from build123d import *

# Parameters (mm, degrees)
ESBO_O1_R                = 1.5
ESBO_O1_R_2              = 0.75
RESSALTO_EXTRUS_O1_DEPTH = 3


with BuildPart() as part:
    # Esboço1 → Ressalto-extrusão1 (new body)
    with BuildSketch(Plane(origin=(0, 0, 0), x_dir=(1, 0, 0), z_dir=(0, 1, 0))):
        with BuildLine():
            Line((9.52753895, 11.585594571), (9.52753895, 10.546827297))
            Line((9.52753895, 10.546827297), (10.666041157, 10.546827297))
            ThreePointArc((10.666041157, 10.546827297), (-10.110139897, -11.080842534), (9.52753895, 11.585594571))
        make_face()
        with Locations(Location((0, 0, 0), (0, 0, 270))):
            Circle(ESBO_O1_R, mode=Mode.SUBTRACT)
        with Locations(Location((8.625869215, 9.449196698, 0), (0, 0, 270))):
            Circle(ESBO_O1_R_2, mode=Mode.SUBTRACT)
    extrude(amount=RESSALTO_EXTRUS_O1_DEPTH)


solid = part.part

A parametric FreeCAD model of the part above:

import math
import FreeCAD as App
import Part
import Sketcher
from FreeCAD import Vector
Q = App.Units.Quantity

doc = App.newDocument("Part")
params = doc.addObject("Spreadsheet::Sheet", "Params")
for row, (alias, value) in enumerate([
    ("sketch1_diameter", "3 mm"),
    ("sketch1_radius", "15 mm"),
    ("sketch1_diameter2", "1.5 mm"),
    ("pad1_length", "3 mm"),
], start=1):
    params.set(f"A{row}", alias)
    params.set(f"B{row}", "=" + value)
    params.setAlias(f"B{row}", alias)

body = doc.addObject("PartDesign::Body", "Body")

sketch1 = doc.addObject("Sketcher::SketchObject", "Sketch")
body.addObject(sketch1)
sketch1.AttachmentSupport = (doc.XZ_Plane, [""])
sketch1.MapMode = "FlatFace"
sketch1.addGeometry([
    Part.LineSegment(Vector(9.527539, -10.546827, 0), Vector(9.527539, -11.585595, 0)),
    Part.ArcOfCircle(Part.Circle(Vector(0, 0, 0), Vector(0, 0, 1), 15), math.radians(-44.678008), math.radians(309.43254)),
    Part.LineSegment(Vector(10.666041, -10.546827, 0), Vector(9.527539, -10.546827, 0)),
    Part.Circle(Vector(0, 0, 0), Vector(0, 0, 1), 1.5),
    Part.Circle(Vector(8.625869, -9.449197, 0), Vector(0, 0, 1), 0.75),
], False)
sketch1.addConstraint([
    Sketcher.Constraint("Coincident", 0, 2, 1, 2),
    Sketcher.Constraint("Coincident", 1, 1, 2, 1),
    Sketcher.Constraint("Coincident", 2, 2, 0, 1),
    Sketcher.Constraint("Vertical", 0),
    Sketcher.Constraint("Horizontal", 2),
    Sketcher.Constraint("Coincident", 1, 3, -1, 1),
    Sketcher.Constraint("Coincident", 3, 3, -1, 1),
    Sketcher.Constraint("Diameter", 3, Q("3 mm")),
    Sketcher.Constraint("Radius", 1, Q("15 mm")),
    Sketcher.Constraint("Diameter", 4, Q("1.5 mm")),
    Sketcher.Constraint("DistanceX", 2, 2, 2, 1, Q("1.138502 mm")),
    Sketcher.Constraint("DistanceY", 0, 2, 0, 1, Q("1.038767 mm")),
    Sketcher.Constraint("DistanceX", -1, 1, 4, 3, Q("8.625869 mm")),
    Sketcher.Constraint("DistanceY", 1, 1, 4, 3, Q("1.097631 mm")),
])
sketch1.setExpression("Constraints[7]", "Params.sketch1_diameter")
sketch1.setExpression("Constraints[8]", "Params.sketch1_radius")
sketch1.setExpression("Constraints[9]", "Params.sketch1_diameter2")
pad1 = doc.addObject("PartDesign::Pad", "Pad")
body.addObject(pad1)
pad1.Profile = sketch1
pad1.setExpression("Length", "Params.pad1_length")
pad1.Reversed = True

doc.recompute()
